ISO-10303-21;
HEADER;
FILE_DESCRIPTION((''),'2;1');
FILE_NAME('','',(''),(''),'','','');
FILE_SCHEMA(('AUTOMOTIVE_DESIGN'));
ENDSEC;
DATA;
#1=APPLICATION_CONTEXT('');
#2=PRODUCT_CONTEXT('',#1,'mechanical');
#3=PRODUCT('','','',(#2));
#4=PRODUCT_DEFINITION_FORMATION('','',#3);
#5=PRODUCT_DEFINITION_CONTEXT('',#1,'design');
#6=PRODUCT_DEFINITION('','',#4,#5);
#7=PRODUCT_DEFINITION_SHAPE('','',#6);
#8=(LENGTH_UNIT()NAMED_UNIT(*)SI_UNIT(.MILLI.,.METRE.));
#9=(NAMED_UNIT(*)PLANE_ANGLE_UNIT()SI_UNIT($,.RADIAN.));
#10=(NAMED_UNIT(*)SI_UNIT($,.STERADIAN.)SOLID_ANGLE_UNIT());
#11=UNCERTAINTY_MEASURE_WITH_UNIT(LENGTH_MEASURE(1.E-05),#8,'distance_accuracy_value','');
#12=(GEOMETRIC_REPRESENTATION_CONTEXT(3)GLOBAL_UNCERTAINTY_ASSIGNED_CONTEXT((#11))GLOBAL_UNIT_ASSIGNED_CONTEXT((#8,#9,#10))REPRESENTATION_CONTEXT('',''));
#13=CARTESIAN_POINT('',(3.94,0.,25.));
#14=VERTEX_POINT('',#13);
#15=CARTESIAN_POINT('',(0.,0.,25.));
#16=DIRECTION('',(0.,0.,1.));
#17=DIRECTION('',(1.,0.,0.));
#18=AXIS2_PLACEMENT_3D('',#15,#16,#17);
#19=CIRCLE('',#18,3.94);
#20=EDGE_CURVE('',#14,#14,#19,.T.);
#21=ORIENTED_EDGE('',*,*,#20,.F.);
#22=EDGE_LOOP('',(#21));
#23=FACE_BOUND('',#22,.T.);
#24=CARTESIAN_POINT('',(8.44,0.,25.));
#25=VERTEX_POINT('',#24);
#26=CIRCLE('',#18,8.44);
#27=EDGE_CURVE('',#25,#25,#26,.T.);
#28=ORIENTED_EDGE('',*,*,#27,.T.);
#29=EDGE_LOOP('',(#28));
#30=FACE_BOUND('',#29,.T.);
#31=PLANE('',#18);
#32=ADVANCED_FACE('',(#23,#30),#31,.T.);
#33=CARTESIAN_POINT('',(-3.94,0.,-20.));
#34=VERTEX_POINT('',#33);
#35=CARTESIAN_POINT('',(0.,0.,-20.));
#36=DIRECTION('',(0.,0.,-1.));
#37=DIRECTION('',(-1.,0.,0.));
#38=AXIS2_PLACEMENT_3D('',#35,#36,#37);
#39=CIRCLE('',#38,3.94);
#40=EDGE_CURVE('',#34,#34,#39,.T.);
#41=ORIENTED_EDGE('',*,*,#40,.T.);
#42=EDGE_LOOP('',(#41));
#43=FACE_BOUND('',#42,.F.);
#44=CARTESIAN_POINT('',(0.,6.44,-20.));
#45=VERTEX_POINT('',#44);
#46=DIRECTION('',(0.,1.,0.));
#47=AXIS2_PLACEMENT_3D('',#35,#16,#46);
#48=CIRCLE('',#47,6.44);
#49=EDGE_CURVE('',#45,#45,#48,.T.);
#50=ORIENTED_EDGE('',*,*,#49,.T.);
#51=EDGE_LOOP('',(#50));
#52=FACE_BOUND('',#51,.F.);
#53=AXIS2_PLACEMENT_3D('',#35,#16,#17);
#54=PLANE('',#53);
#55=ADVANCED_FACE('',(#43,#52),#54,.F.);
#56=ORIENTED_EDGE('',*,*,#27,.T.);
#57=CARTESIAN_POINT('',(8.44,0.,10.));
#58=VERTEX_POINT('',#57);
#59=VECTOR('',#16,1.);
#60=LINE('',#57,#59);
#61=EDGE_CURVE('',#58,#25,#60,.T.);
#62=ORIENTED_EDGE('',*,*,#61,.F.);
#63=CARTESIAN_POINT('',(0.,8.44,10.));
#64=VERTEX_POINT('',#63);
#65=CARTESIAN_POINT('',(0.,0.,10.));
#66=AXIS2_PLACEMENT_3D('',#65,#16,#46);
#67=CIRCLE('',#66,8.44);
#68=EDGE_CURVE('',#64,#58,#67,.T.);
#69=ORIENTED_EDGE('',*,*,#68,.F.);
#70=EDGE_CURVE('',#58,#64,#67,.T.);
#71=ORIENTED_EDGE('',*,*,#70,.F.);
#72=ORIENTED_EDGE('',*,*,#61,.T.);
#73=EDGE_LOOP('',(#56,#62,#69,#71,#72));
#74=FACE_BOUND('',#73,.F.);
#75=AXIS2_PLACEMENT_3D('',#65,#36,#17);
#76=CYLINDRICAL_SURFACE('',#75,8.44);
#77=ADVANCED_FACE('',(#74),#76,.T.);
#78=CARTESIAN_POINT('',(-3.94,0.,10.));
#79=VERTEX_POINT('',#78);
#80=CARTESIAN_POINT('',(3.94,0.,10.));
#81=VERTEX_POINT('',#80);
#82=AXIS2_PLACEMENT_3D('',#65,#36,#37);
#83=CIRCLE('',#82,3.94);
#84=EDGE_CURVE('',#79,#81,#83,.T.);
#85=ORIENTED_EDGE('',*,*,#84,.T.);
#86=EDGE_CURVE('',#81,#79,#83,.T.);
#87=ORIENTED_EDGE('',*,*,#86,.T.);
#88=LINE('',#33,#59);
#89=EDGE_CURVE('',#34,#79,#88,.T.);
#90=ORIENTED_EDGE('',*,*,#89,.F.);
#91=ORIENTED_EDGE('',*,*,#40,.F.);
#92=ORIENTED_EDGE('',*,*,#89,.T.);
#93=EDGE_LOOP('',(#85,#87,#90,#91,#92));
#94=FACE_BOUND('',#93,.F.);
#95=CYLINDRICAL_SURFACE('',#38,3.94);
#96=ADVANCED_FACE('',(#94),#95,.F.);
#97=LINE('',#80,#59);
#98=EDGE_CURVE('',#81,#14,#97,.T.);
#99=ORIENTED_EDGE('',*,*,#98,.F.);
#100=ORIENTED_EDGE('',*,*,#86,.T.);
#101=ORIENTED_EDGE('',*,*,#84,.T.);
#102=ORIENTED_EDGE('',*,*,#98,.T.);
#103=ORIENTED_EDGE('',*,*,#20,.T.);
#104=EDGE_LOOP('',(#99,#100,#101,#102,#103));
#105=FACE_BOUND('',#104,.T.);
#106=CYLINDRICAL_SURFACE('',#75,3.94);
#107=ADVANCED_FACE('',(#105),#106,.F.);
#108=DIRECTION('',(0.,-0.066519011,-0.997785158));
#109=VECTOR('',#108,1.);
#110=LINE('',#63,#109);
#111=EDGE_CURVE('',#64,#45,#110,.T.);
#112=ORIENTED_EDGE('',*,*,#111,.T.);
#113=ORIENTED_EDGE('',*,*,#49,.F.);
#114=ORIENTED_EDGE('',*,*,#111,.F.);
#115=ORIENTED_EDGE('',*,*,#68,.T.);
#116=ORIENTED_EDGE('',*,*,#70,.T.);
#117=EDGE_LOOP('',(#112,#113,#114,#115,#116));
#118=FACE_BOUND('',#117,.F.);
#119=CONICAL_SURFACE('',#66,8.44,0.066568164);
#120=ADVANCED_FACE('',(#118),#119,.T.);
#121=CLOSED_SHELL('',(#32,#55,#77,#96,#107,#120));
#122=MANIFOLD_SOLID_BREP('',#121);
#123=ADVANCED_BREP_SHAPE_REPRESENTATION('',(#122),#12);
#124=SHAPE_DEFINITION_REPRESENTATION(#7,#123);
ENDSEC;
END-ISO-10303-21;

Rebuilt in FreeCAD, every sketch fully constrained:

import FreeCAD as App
import Part
import Sketcher
Q = App.Units.Quantity


def add_polygon(sketch, points):
    """Adds a closed chain of lines whose ends are joined by coincident constraints."""
    first, n = sketch.GeometryCount, len(points)
    for a, b in zip(points, points[1:] + points[:1]):
        sketch.addGeometry(Part.LineSegment(App.Vector(*a, 0), App.Vector(*b, 0)), False)
    for i in range(n):
        sketch.addConstraint(Sketcher.Constraint("Coincident", first + i, 2, first + (i + 1) % n, 1))

doc = App.newDocument("Part")
params = doc.addObject("Spreadsheet::Sheet", "Params")
for row, (alias, value) in enumerate([
    ("sketch1_diameter", "16.88 mm"),
    ("pad1_length", "10 mm"),
    ("pad1_length2", "20 mm"),
    ("sketch2_width", "2 mm"),
    ("sketch2_height", "30 mm"),
    ("groove_angle", "360 deg"),
    ("sketch3_diameter", "7.88 mm"),
    ("sketch4_diameter", "16.88 mm"),
    ("sketch4_diameter2", "7.88 mm"),
    ("pad2_length", "15 mm"),
], start=1):
    params.set(f"A{row}", alias)
    params.set(f"B{row}", "=" + value)
    params.setAlias(f"B{row}", alias)

body = doc.addObject("PartDesign::Body", "Body")

sketch1 = doc.addObject("Sketcher::SketchObject", "Sketch")
body.addObject(sketch1)
sketch1.AttachmentSupport = (doc.XY_Plane, [""])
sketch1.MapMode = "FlatFace"
sketch1.addGeometry(Part.Circle(App.Vector(0, 0, 0), App.Vector(0, 0, 1), 8), False)
sketch1.addConstraint(Sketcher.Constraint("Coincident", 0, 3, -1, 1))
sketch1.addConstraint(Sketcher.Constraint("Diameter", 0, Q("16.88 mm")))
sketch1.setExpression("Constraints[1]", "Params.sketch1_diameter")
pad1 = doc.addObject("PartDesign::Pad", "Pad")
body.addObject(pad1)
pad1.Profile = sketch1
pad1.Type = "TwoLengths"
pad1.setExpression("Length", "Params.pad1_length")
pad1.setExpression("Length2", "Params.pad1_length2")

sketch2 = doc.addObject("Sketcher::SketchObject", "Sketch001")
body.addObject(sketch2)
sketch2.AttachmentSupport = (doc.YZ_Plane, [""])
sketch2.MapMode = "FlatFace"
add_polygon(sketch2, [(8.4, -20), (8.4, 10), (6.4, -20)])
sketch2.addConstraint(Sketcher.Constraint("Vertical", 0))
sketch2.addConstraint(Sketcher.Constraint("Horizontal", 2))
sketch2.addConstraint(Sketcher.Constraint("DistanceX", 2, 1, 2, 2, Q("2 mm")))
sketch2.addConstraint(Sketcher.Constraint("DistanceY", 0, 1, 0, 2, Q("30 mm")))
sketch2.addConstraint(Sketcher.Constraint("DistanceY", -1, 1, 0, 2, Q("10 mm")))
sketch2.addConstraint(Sketcher.Constraint("DistanceX", -1, 1, 0, 2, Q("8.44 mm")))
sketch2.setExpression("Constraints[5]", "Params.sketch2_width")
sketch2.setExpression("Constraints[6]", "Params.sketch2_height")
groove = doc.addObject("PartDesign::Groove", "Groove")
body.addObject(groove)
groove.Profile = sketch2
groove.ReferenceAxis = (sketch2, ["V_Axis"])
groove.setExpression("Angle", "Params.groove_angle")

sketch3 = doc.addObject("Sketcher::SketchObject", "Sketch002")
body.addObject(sketch3)
sketch3.AttachmentSupport = (doc.XY_Plane, [""])
sketch3.MapMode = "FlatFace"
sketch3.AttachmentOffset = App.Placement(App.Vector(0, 0, -20), App.Rotation())
sketch3.addGeometry(Part.Circle(App.Vector(0, 0, 0), App.Vector(0, 0, 1), 3.9), False)
sketch3.addConstraint(Sketcher.Constraint("Coincident", 0, 3, -1, 1))
sketch3.addConstraint(Sketcher.Constraint("Diameter", 0, Q("7.88 mm")))
sketch3.setExpression("Constraints[1]", "Params.sketch3_diameter")
pocket1 = doc.addObject("PartDesign::Pocket", "Pocket")
body.addObject(pocket1)
pocket1.Profile = sketch3
pocket1.Type = "ThroughAll"
pocket1.Reversed = True

sketch4 = doc.addObject("Sketcher::SketchObject", "Sketch003")
body.addObject(sketch4)
sketch4.AttachmentSupport = (doc.XY_Plane, [""])
sketch4.MapMode = "FlatFace"
sketch4.AttachmentOffset = App.Placement(App.Vector(0, 0, 10), App.Rotation())
sketch4.addGeometry(Part.Circle(App.Vector(0, 0, 0), App.Vector(0, 0, 1), 8.4), False)
sketch4.addGeometry(Part.Circle(App.Vector(0, 0, 0), App.Vector(0, 0, 1), 3.9), False)
sketch4.addConstraint(Sketcher.Constraint("Coincident", 0, 3, -1, 1))
sketch4.addConstraint(Sketcher.Constraint("Coincident", 1, 3, -1, 1))
sketch4.addConstraint(Sketcher.Constraint("Diameter", 0, Q("16.88 mm")))
sketch4.addConstraint(Sketcher.Constraint("Diameter", 1, Q("7.88 mm")))
sketch4.setExpression("Constraints[2]", "Params.sketch4_diameter")
sketch4.setExpression("Constraints[3]", "Params.sketch4_diameter2")
pad2 = doc.addObject("PartDesign::Pad", "Pad001")
body.addObject(pad2)
pad2.Profile = sketch4
pad2.setExpression("Length", "Params.pad2_length")

doc.recompute()
